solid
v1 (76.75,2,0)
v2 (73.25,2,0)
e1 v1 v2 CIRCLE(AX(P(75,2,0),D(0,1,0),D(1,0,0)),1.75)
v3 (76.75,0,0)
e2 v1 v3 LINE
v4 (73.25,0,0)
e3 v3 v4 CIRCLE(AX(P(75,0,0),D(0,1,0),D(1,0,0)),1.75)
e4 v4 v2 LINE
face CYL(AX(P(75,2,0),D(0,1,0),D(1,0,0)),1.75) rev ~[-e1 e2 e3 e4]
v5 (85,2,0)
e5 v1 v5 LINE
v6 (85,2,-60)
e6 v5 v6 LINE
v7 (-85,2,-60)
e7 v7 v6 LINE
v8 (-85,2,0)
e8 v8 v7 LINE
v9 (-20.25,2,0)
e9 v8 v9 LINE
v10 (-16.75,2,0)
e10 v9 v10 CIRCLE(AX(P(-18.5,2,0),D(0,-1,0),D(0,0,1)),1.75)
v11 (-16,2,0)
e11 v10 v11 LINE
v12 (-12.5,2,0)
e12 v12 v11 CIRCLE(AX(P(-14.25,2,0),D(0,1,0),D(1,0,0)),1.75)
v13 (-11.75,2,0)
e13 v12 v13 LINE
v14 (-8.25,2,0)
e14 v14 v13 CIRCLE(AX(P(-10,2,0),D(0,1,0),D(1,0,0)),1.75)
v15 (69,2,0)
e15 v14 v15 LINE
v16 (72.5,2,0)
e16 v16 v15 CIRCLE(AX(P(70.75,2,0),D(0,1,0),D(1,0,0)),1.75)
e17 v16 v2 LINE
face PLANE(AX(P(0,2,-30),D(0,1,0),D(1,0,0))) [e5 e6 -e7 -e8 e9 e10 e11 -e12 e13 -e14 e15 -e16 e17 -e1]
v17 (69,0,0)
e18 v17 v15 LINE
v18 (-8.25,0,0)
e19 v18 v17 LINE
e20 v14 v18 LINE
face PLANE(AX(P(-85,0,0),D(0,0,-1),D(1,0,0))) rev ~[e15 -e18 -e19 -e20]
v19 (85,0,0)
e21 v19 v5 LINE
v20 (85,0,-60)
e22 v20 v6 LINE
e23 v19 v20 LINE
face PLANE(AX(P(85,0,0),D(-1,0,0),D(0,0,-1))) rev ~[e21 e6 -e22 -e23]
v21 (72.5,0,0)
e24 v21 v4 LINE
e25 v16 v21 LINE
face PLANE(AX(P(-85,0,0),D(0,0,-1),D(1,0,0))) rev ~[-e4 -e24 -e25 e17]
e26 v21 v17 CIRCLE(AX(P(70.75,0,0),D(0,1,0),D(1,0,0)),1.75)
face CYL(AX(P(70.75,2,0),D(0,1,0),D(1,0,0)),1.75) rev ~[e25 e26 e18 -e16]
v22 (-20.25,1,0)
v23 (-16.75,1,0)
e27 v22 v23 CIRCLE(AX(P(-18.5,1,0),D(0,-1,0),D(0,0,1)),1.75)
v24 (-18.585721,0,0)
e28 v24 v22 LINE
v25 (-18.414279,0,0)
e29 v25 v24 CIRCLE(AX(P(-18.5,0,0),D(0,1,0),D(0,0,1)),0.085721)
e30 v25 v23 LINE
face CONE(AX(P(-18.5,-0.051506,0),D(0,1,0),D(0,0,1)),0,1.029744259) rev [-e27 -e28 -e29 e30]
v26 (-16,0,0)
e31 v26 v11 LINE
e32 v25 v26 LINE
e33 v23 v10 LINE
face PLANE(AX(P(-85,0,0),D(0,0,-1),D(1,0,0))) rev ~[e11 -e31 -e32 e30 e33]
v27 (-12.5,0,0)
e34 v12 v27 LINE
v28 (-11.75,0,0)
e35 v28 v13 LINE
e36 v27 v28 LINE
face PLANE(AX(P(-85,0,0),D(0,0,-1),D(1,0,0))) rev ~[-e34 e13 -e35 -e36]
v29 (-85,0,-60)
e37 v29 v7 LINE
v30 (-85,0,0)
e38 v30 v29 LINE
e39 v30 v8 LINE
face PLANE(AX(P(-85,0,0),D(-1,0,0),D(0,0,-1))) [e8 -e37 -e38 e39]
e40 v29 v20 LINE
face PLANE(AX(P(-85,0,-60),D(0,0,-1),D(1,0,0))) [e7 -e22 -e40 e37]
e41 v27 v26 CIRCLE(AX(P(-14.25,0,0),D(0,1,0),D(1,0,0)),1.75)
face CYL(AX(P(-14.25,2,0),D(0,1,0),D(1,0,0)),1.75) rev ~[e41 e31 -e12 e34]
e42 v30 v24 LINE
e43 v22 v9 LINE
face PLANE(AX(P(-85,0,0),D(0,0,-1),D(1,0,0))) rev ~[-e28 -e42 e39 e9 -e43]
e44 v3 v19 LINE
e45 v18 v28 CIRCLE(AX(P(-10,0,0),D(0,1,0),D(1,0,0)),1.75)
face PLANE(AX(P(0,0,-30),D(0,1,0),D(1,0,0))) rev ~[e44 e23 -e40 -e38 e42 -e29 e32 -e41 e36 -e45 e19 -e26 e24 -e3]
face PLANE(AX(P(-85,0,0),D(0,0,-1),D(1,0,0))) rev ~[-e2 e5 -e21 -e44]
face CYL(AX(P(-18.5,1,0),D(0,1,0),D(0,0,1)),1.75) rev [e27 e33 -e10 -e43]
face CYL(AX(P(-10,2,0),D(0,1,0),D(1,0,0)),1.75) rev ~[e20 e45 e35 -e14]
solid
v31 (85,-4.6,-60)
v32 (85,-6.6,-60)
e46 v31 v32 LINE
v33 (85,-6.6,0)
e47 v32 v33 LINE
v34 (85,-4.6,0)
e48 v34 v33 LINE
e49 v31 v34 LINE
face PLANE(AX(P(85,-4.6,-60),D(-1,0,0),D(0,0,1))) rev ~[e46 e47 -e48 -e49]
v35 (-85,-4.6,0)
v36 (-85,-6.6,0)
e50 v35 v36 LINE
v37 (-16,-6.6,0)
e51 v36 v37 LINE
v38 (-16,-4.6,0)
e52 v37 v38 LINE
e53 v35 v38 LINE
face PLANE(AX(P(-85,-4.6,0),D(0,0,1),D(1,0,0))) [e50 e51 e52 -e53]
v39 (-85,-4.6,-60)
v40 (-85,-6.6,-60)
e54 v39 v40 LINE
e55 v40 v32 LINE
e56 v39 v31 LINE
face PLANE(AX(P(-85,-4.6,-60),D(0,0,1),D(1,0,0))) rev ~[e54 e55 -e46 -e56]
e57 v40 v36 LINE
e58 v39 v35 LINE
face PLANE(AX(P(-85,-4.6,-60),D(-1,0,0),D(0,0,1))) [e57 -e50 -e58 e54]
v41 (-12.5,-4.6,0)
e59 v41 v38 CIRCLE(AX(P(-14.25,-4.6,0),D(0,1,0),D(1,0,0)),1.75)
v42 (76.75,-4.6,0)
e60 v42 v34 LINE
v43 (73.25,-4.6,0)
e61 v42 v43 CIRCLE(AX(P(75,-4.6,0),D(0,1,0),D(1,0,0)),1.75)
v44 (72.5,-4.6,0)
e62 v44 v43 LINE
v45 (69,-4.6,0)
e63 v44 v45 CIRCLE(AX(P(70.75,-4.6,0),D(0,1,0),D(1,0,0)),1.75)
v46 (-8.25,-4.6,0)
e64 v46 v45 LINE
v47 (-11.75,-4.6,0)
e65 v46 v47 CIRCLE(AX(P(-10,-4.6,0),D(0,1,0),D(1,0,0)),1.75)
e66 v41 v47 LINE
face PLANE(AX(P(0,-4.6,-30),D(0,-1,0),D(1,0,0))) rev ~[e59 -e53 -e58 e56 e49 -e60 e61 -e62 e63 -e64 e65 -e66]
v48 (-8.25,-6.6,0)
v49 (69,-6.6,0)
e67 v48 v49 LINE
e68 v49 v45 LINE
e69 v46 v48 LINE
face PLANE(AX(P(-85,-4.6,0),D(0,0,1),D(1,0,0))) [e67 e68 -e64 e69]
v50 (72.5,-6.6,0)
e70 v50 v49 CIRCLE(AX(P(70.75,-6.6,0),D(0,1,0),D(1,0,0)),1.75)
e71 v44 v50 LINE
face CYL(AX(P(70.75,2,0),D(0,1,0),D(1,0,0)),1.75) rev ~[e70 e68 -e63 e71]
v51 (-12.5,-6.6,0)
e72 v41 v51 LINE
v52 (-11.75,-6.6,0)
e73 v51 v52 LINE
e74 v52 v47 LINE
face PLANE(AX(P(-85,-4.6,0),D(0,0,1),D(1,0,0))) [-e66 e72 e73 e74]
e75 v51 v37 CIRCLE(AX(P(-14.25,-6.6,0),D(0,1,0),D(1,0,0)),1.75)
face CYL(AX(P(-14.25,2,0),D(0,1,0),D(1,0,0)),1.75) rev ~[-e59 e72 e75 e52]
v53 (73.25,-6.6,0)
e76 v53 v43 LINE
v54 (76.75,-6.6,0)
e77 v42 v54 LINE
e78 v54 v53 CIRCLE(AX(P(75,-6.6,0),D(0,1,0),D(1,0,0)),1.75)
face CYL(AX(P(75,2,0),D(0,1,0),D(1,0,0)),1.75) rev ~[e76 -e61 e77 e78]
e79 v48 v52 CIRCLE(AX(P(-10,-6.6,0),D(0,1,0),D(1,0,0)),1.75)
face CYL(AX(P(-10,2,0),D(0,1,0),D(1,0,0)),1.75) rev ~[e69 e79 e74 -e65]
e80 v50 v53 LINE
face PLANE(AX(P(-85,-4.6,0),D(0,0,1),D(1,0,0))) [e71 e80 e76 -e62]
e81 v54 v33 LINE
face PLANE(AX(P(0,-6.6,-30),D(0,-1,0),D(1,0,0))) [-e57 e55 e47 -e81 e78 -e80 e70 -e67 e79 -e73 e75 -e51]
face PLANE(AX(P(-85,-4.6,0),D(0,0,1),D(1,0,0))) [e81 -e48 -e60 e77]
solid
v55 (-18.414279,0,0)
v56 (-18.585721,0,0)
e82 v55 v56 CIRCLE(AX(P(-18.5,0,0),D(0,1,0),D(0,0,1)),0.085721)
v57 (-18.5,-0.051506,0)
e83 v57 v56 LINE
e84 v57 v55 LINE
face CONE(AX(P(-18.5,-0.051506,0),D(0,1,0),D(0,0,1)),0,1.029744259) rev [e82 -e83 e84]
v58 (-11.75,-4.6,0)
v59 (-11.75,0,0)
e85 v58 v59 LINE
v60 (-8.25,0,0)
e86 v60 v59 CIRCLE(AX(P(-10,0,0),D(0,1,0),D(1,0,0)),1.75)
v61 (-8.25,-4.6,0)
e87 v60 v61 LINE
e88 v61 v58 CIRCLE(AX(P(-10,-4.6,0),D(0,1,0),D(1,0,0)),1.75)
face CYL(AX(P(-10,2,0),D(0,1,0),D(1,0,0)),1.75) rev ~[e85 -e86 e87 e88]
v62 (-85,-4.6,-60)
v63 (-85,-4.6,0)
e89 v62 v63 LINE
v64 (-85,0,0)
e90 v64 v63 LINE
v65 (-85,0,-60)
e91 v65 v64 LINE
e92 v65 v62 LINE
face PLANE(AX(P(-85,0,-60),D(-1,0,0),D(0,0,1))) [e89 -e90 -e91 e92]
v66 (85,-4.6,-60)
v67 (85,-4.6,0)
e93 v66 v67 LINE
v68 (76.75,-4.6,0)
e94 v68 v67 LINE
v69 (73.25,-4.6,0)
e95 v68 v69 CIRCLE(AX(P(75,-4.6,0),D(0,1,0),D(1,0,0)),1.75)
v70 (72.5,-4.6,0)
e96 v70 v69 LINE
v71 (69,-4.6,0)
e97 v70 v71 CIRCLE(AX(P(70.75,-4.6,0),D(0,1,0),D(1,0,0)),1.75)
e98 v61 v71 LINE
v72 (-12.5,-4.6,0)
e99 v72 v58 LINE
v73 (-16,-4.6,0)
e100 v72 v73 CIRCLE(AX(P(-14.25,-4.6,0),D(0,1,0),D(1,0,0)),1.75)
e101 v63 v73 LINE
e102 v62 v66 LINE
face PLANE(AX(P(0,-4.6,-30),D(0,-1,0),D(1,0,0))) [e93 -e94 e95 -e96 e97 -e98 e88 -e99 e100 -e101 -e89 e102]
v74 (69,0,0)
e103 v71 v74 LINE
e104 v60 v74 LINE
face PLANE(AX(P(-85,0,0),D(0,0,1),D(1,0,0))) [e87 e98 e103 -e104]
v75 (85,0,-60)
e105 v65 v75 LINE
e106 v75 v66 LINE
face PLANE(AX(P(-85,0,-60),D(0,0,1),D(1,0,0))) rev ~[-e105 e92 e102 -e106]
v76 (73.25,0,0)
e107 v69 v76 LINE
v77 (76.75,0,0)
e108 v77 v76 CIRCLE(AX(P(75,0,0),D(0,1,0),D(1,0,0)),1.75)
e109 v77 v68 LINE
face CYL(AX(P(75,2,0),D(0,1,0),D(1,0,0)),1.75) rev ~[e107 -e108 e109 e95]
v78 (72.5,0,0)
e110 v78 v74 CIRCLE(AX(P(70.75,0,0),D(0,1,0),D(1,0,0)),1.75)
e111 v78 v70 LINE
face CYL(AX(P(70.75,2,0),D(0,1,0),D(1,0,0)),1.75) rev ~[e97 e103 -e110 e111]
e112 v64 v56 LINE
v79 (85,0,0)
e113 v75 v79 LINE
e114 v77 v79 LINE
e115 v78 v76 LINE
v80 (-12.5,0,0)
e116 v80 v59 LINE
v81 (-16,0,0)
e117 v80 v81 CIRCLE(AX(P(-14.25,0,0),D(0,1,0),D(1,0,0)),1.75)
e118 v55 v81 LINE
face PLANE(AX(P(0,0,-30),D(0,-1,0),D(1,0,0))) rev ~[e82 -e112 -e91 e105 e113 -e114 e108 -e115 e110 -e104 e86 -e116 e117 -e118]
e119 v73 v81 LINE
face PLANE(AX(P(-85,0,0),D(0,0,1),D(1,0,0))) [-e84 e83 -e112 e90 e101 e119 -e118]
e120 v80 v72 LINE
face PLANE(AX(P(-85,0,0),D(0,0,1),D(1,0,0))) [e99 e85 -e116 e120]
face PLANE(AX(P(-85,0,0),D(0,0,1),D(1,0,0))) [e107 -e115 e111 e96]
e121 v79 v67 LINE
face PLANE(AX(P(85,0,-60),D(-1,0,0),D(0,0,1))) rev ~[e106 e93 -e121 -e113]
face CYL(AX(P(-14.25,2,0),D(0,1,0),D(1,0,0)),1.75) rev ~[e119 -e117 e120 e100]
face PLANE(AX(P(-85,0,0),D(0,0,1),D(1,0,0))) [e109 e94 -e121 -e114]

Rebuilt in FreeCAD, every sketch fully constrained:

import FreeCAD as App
import Part
import Sketcher
Q = App.Units.Quantity


def add_polygon(sketch, points):
    """Adds a closed chain of lines whose ends are joined by coincident constraints."""
    first, n = sketch.GeometryCount, len(points)
    for a, b in zip(points, points[1:] + points[:1]):
        sketch.addGeometry(Part.LineSegment(App.Vector(*a, 0), App.Vector(*b, 0)), False)
    for i in range(n):
        sketch.addConstraint(Sketcher.Constraint("Coincident", first + i, 2, first + (i + 1) % n, 1))

doc = App.newDocument("Part")
body = doc.addObject("PartDesign::Body", "Body")

# Sketch on XZ plane
sketch1 = body.newObject("Sketcher::SketchObject", "Sketch")
sketch1.AttachmentSupport = (doc.getObject("XZ_Plane"), [""])
sketch1.MapMode = "FlatFace"
add_polygon(sketch1, [(-85, -60), (-85, 0), (85, 0), (85, -60)])  # lines 0-3
sketch1.addConstraint(Sketcher.Constraint("Vertical", 0))
sketch1.addConstraint(Sketcher.Constraint("Horizontal", 1))
sketch1.addConstraint(Sketcher.Constraint("Vertical", 2))
sketch1.addConstraint(Sketcher.Constraint("Horizontal", 3))
sketch1.addConstraint(Sketcher.Constraint("Symmetric", 0, 2, 1, 2, -1, 1))
sketch1.addConstraint(Sketcher.Constraint("DistanceX", 1, 1, 1, 2, Q("170 mm")))
sketch1.addConstraint(Sketcher.Constraint("DistanceY", 0, 1, 0, 2, Q("60 mm")))
pad1 = body.newObject("PartDesign::Pad", "Pad")
pad1.Profile = sketch1
pad1.Length = 2
pad1.Reversed = True
body2 = doc.addObject("PartDesign::Body", "Body001")

# Sketch on XZ plane
sketch2 = body2.newObject("Sketcher::SketchObject", "Sketch001")
sketch2.AttachmentSupport = (doc.getObject("XZ_Plane001"), [""])
sketch2.MapMode = "FlatFace"
add_polygon(sketch2, [(-85, 0), (-85, -60), (85, -60), (85, 0)])  # lines 0-3
sketch2.addConstraint(Sketcher.Constraint("Vertical", 0))
sketch2.addConstraint(Sketcher.Constraint("Horizontal", 1))
sketch2.addConstraint(Sketcher.Constraint("Vertical", 2))
sketch2.addConstraint(Sketcher.Constraint("Horizontal", 3))
sketch2.addConstraint(Sketcher.Constraint("Symmetric", 2, 2, 3, 2, -1, 1))
sketch2.addConstraint(Sketcher.Constraint("DistanceX", 1, 1, 1, 2, Q("170 mm")))
sketch2.addConstraint(Sketcher.Constraint("DistanceY", 0, 2, 0, 1, Q("60 mm")))
pad2 = body2.newObject("PartDesign::Pad", "Pad001")
pad2.Profile = sketch2
pad2.Length = 4.6
body3 = doc.addObject("PartDesign::Body", "Body002")

# Sketch on XZ plane
sketch3 = body3.newObject("Sketcher::SketchObject", "Sketch002")
sketch3.AttachmentSupport = (doc.getObject("XZ_Plane002"), [""])
sketch3.MapMode = "FlatFace"
sketch3.AttachmentOffset = App.Placement(App.Vector(0, 0, 4.6), App.Rotation())
add_polygon(sketch3, [(-85, 0), (-85, -60), (85, -60), (85, 0)])  # lines 0-3
sketch3.addConstraint(Sketcher.Constraint("Vertical", 0))
sketch3.addConstraint(Sketcher.Constraint("Horizontal", 1))
sketch3.addConstraint(Sketcher.Constraint("Vertical", 2))
sketch3.addConstraint(Sketcher.Constraint("Horizontal", 3))
sketch3.addConstraint(Sketcher.Constraint("Symmetric", 2, 2, 3, 2, -1, 1))
sketch3.addConstraint(Sketcher.Constraint("DistanceX", 1, 1, 1, 2, Q("170 mm")))
sketch3.addConstraint(Sketcher.Constraint("DistanceY", 0, 2, 0, 1, Q("60 mm")))
pad3 = body3.newObject("PartDesign::Pad", "Pad002")
pad3.Profile = sketch3
pad3.Length = 2
body4 = doc.addObject("PartDesign::Body", "Body003")
body4.AllowCompound = True

# Sketch on XZ plane
sketch4 = body4.newObject("Sketcher::SketchObject", "Sketch003")
sketch4.AttachmentSupport = (doc.getObject("XZ_Plane003"), [""])
sketch4.MapMode = "FlatFace"
sketch4.AttachmentOffset = App.Placement(App.Vector(0, 0, -2), App.Rotation())
sketch4.addGeometry(Part.Circle(App.Vector(75, 0, 0), App.Vector(0, 0, 1), 1.8), False)
sketch4.addGeometry(Part.Circle(App.Vector(-10, 0, 0), App.Vector(0, 0, 1), 1.8), False)
sketch4.addGeometry(Part.Circle(App.Vector(70.8, 0, 0), App.Vector(0, 0, 1), 1.8), False)
sketch4.addGeometry(Part.Circle(App.Vector(-14.2, 0, 0), App.Vector(0, 0, 1), 1.8), False)
sketch4.addConstraint(Sketcher.Constraint("Equal", 0, 1))
sketch4.addConstraint(Sketcher.Constraint("Equal", 1, 2))
sketch4.addConstraint(Sketcher.Constraint("Equal", 2, 3))
sketch4.addConstraint(Sketcher.Constraint("PointOnObject", 0, 3, -1))
sketch4.addConstraint(Sketcher.Constraint("PointOnObject", 1, 3, -1))
sketch4.addConstraint(Sketcher.Constraint("PointOnObject", 2, 3, -1))
sketch4.addConstraint(Sketcher.Constraint("PointOnObject", 3, 3, -1))
sketch4.addConstraint(Sketcher.Constraint("Diameter", 0, Q("3.5 mm")))
sketch4.addConstraint(Sketcher.Constraint("DistanceX", -1, 1, 0, 3, Q("75 mm")))
sketch4.addConstraint(Sketcher.Constraint("DistanceX", 1, 3, -1, 1, Q("10 mm")))
sketch4.addConstraint(Sketcher.Constraint("DistanceX", 3, 3, 2, 3, Q("85 mm")))
sketch4.addConstraint(Sketcher.Constraint("DistanceX", -1, 1, 2, 3, Q("70.75 mm")))
pad4 = body4.newObject("PartDesign::Pad", "Pad003")
pad4.Profile = sketch4
pad4.Length = 105.398084
doc.recompute()

body5 = doc.addObject("PartDesign::Body", "Body004")
body5.BaseFeature = body4
boolean = body.newObject("PartDesign::Boolean", "Boolean")
boolean.Type = "Cut"
boolean.addObjects([body5])
doc.recompute()

body6 = doc.addObject("PartDesign::Body", "Body005")
body6.BaseFeature = body4
boolean2 = body2.newObject("PartDesign::Boolean", "Boolean001")
boolean2.Type = "Cut"
boolean2.addObjects([body6])
doc.recompute()

boolean3 = body3.newObject("PartDesign::Boolean", "Boolean002")
boolean3.Type = "Cut"
boolean3.addObjects([body4])
body7 = doc.addObject("PartDesign::Body", "Body006")

# Sketch on YZ plane
sketch5 = body7.newObject("Sketcher::SketchObject", "Sketch004")
sketch5.AttachmentSupport = (doc.getObject("YZ_Plane006"), [""])
sketch5.MapMode = "FlatFace"
sketch5.AttachmentOffset = App.Placement(App.Vector(0, 0, -18.5), App.Rotation())
add_polygon(sketch5, [(-0.1, 0), (2, 0), (2, 1.8), (1, 1.8)])  # lines 0-3
sketch5.addConstraint(Sketcher.Constraint("Horizontal", 0))
sketch5.addConstraint(Sketcher.Constraint("Vertical", 1))
sketch5.addConstraint(Sketcher.Constraint("Horizontal", 2))
sketch5.addConstraint(Sketcher.Constraint("PointOnObject", 0, 2, -1))
sketch5.addConstraint(Sketcher.Constraint("DistanceX", 2, 2, 2, 1, Q("1 mm")))
sketch5.addConstraint(Sketcher.Constraint("Angle", 3, Q("-121 deg")))
sketch5.addConstraint(Sketcher.Constraint("DistanceX", -1, 1, 0, 2, Q("2 mm")))
sketch5.addConstraint(Sketcher.Constraint("DistanceY", 1, 1, 1, 2, Q("1.75 mm")))
revolution = body7.newObject("PartDesign::Revolution", "Revolution")
revolution.Profile = sketch5
revolution.ReferenceAxis = (sketch5, ["H_Axis"])
revolution.Angle = 360
doc.recompute()

body8 = doc.addObject("PartDesign::Body", "Body007")
body8.BaseFeature = body7
boolean4 = body.newObject("PartDesign::Boolean", "Boolean003")
boolean4.Type = "Cut"
boolean4.addObjects([body8])
doc.recompute()

boolean5 = body2.newObject("PartDesign::Boolean", "Boolean004")
boolean5.Type = "Cut"
boolean5.addObjects([body7])

doc.recompute()
